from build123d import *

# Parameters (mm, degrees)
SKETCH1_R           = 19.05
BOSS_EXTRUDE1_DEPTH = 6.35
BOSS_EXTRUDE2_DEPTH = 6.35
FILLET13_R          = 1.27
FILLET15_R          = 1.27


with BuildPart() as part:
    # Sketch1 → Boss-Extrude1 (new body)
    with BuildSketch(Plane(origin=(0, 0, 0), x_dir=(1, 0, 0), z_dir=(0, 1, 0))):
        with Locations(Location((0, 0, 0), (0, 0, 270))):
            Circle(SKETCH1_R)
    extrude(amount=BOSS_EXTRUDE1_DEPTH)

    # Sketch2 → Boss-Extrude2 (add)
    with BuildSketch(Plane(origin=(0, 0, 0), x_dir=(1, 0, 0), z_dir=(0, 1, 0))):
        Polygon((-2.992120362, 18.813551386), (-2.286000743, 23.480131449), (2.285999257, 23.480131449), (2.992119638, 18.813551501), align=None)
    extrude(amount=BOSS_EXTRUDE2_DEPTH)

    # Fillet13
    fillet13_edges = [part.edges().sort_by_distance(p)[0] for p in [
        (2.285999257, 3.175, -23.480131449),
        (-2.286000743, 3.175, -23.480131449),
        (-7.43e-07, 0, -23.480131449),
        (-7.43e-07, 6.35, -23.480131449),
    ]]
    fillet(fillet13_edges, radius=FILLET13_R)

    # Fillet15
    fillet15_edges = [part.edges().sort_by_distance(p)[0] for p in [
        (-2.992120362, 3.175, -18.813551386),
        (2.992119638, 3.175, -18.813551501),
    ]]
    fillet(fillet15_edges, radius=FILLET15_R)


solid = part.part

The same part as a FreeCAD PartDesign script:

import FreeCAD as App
import Part
import Sketcher

V = App.Vector
Q = App.Units.Quantity


def edges_at(feature, points):
    """Names of the edges that pass closest to the given points."""
    edges = feature.Shape.Edges
    near = lambda p: min(range(len(edges)), key=lambda i: edges[i].distToShape(Part.Vertex(*p))[0])
    return sorted({f"Edge{near(p) + 1}" for p in points})

doc = App.newDocument("Part")
body = doc.addObject("PartDesign::Body", "Body")

# Sketch on XZ plane
sketch1 = doc.addObject("Sketcher::SketchObject", "Sketch")
body.addObject(sketch1)
sketch1.AttachmentSupport = (doc.XZ_Plane, [""])
sketch1.MapMode = "FlatFace"
sketch1.addGeometry(Part.Circle(V(0, 0, 0), V(0, 0, 1), 19.05), False)
sketch1.addConstraint([
    Sketcher.Constraint("Coincident", 0, 3, -1, 1),
    Sketcher.Constraint("Diameter", 0, Q("1.5 in")),
])
pad1 = doc.addObject("PartDesign::Pad", "Pad")
body.addObject(pad1)
pad1.Profile = sketch1
pad1.Length = Q("0.25 in")
pad1.Reversed = True

# Sketch on XZ plane
sketch2 = doc.addObject("Sketcher::SketchObject", "Sketch001")
body.addObject(sketch2)
sketch2.AttachmentSupport = (doc.XZ_Plane, [""])
sketch2.MapMode = "FlatFace"
sketch2.addGeometry([
    Part.LineSegment(V(-2.286001, -23.480131, 0), V(-2.99212, -18.813551, 0)),
    Part.LineSegment(V(-2.99212, -18.813551, 0), V(2.99212, -18.813552, 0)),
    Part.LineSegment(V(2.99212, -18.813552, 0), V(2.285999, -23.480131, 0)),
    Part.LineSegment(V(2.285999, -23.480131, 0), V(-2.286001, -23.480131, 0)),
], False)
sketch2.addConstraint([
    Sketcher.Constraint("Coincident", 0, 2, 1, 1),
    Sketcher.Constraint("Coincident", 1, 2, 2, 1),
    Sketcher.Constraint("Coincident", 2, 2, 3, 1),
    Sketcher.Constraint("Coincident", 3, 2, 0, 1),
    Sketcher.Constraint("Horizontal", 1),
    Sketcher.Constraint("Horizontal", 3),
    Sketcher.Constraint("Equal", 0, 2),
    Sketcher.Constraint("DistanceX", 3, 2, 3, 1, Q("0.18 in")),
    Sketcher.Constraint("DistanceX", -1, 1, 2, 2, Q("0.09 in")),
    Sketcher.Constraint("DistanceX", 1, 1, 1, 2, Q("0.2356 in")),
    Sketcher.Constraint("Distance", 0, Q("4.719701 mm")),
    Sketcher.Constraint("DistanceY", 0, 2, -1, 1, Q("18.813551 mm")),
])
pad2 = doc.addObject("PartDesign::Pad", "Pad001")
body.addObject(pad2)
pad2.Profile = sketch2
pad2.Length = Q("0.25 in")
pad2.Reversed = True
doc.recompute()

fillet = doc.addObject("PartDesign::Fillet", "Fillet")
body.addObject(fillet)
fillet.Base = (pad2, edges_at(pad2, [
    (2.286, 3.175, -23.48),
    (-2.286, 3.175, -23.48),
    (0, 0, -23.48),
    (0, 6.35, -23.48),
]))
fillet.Radius = Q("0.05 in")
doc.recompute()

fillet2 = doc.addObject("PartDesign::Fillet", "Fillet001")
body.addObject(fillet2)
fillet2.Base = (fillet, edges_at(fillet, [(-2.992, 3.175, -18.814), (2.992, 3.175, -18.814)]))
fillet2.Radius = Q("0.05 in")

doc.recompute()
